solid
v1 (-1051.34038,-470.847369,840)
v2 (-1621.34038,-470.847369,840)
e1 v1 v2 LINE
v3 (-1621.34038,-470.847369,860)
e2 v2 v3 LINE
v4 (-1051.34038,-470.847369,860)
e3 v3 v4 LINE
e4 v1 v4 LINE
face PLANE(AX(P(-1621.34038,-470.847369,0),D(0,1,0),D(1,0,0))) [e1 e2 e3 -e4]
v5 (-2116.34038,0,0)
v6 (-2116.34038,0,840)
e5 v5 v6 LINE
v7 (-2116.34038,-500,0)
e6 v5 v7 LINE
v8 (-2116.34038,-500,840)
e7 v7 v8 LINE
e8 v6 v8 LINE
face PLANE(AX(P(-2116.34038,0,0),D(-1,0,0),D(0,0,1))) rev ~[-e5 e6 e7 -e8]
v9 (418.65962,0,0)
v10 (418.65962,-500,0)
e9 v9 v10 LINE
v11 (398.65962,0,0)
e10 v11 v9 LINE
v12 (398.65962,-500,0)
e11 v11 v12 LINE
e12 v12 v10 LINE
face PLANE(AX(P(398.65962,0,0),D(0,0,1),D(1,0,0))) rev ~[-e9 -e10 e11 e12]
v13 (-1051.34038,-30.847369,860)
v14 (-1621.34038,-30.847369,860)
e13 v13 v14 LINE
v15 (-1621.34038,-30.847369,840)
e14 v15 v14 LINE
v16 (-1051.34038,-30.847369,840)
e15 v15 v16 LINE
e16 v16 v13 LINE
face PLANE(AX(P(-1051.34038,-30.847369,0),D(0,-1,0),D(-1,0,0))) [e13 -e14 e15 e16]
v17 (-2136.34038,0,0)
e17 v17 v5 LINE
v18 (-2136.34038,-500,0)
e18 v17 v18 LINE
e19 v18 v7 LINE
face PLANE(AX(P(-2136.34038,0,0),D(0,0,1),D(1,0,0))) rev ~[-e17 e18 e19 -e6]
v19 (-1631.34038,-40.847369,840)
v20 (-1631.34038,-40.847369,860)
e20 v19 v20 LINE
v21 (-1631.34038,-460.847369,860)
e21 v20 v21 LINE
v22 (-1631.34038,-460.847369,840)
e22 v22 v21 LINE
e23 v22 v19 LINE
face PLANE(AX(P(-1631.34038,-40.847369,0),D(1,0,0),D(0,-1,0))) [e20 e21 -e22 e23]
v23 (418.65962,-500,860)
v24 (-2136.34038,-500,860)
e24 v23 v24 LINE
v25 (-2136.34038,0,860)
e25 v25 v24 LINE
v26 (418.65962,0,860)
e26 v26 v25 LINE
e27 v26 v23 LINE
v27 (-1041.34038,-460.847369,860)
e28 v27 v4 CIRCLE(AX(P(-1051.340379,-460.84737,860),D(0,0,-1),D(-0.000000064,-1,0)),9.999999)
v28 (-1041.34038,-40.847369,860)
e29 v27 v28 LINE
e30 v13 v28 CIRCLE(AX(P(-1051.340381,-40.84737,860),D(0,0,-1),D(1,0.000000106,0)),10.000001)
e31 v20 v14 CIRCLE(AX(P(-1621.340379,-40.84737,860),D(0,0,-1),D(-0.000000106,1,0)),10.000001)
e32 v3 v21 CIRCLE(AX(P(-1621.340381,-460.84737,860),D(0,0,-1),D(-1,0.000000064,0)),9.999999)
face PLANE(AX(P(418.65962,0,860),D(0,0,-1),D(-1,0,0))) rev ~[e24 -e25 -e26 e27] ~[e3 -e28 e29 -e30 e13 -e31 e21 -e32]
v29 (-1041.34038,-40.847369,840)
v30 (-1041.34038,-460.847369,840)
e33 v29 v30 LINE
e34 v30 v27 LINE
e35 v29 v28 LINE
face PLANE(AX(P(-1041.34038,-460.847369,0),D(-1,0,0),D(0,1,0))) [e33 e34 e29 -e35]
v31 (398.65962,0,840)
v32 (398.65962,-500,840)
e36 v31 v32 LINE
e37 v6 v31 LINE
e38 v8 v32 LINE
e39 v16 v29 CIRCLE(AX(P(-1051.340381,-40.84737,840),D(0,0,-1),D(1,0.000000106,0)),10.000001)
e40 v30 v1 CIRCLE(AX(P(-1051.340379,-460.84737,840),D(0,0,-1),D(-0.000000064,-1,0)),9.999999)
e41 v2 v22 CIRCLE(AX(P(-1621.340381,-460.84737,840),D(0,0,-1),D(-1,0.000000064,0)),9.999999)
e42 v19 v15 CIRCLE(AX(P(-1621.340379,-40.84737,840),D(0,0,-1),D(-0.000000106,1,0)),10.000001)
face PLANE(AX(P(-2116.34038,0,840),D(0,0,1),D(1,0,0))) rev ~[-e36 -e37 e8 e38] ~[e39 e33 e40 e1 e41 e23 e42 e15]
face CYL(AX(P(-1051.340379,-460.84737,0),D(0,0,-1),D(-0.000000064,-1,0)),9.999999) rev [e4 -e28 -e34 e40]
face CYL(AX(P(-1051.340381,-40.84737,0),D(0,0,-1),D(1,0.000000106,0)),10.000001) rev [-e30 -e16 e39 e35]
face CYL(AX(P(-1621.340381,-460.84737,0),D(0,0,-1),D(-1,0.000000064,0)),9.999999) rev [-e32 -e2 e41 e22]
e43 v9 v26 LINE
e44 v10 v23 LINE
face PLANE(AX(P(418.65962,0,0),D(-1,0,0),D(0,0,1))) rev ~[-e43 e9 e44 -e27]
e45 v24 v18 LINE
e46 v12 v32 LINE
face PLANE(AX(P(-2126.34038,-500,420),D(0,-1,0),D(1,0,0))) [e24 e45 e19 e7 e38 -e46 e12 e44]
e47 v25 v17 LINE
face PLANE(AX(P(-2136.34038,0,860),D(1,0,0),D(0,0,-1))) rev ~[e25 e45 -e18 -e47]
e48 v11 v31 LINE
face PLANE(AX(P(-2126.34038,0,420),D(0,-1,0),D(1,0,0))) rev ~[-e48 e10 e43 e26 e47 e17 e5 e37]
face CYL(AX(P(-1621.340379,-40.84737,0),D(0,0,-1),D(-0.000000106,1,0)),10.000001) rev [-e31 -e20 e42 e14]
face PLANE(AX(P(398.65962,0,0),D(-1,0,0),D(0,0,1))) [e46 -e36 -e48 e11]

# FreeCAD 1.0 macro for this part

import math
import FreeCAD as App
import Part
import Sketcher

V = App.Vector


def add_polygon(sketch, points):
    """Adds a closed chain of lines whose ends are joined by coincident constraints."""
    first, n = sketch.GeometryCount, len(points)
    for a, b in zip(points, points[1:] + points[:1]):
        sketch.addGeometry(Part.LineSegment(App.Vector(*a, 0), App.Vector(*b, 0)), False)
    for i in range(n):
        sketch.addConstraint(Sketcher.Constraint("Coincident", first + i, 2, first + (i + 1) % n, 1))

doc = App.newDocument("Part")
params = doc.addObject("Spreadsheet::Sheet", "Params")
for row, (alias, value) in enumerate([
    ("sketch1_width", "20 mm"),
    ("sketch1_width2", "2515 mm"),
    ("sketch1_height", "840 mm"),
    ("sketch1_height2", "860 mm"),
    ("pad1_length", "500 mm"),
    ("sketch2_radius", "9.999999 mm"),
    ("sketch2_width", "570 mm"),
    ("sketch2_height", "420 mm"),
    ("pocket1_length", "1397 mm"),
], start=1):
    params.set(f"A{row}", alias)
    params.set(f"B{row}", "=" + value)
    params.setAlias(f"B{row}", alias)

body = doc.addObject("PartDesign::Body", "Body")

sketch1 = body.newObject("Sketcher::SketchObject", "Sketch")
sketch1.AttachmentSupport = (doc.getObject("XZ_Plane"), [""])
sketch1.MapMode = "FlatFace"
add_polygon(sketch1, [(-2136.34038, 0), (-2116.34038, 0), (-2116.34038, 840), (398.65962, 840), (398.65962, 0), (418.65962, 0), (418.65962, 860), (-2136.34038, 860)])
sketch1.addConstraint([
    Sketcher.Constraint("Horizontal", 0),
    Sketcher.Constraint("Vertical", 1),
    Sketcher.Constraint("Horizontal", 2),
    Sketcher.Constraint("Vertical", 3),
    Sketcher.Constraint("Horizontal", 4),
    Sketcher.Constraint("Vertical", 5),
    Sketcher.Constraint("Horizontal", 6),
    Sketcher.Constraint("Vertical", 7),
    Sketcher.Constraint("PointOnObject", 0, 2, -1),
    Sketcher.Constraint("PointOnObject", 3, 2, -1),
    Sketcher.Constraint("Equal", 0, 4),
    Sketcher.Constraint("DistanceX", 0, 1, 0, 2, 20.0),
    Sketcher.Constraint("DistanceX", 2, 1, 2, 2, 2515.0),
    Sketcher.Constraint("DistanceY", 1, 1, 1, 2, 840.0),
    Sketcher.Constraint("DistanceY", 5, 1, 5, 2, 860.0),
    Sketcher.Constraint("DistanceX", 0, 2, -1, 1, 2116.34038),
])
sketch1.setExpression("Constraints[19]", "Params.sketch1_width")
sketch1.setExpression("Constraints[20]", "Params.sketch1_width2")
sketch1.setExpression("Constraints[21]", "Params.sketch1_height")
sketch1.setExpression("Constraints[22]", "Params.sketch1_height2")
pad1 = body.newObject("PartDesign::Pad", "Pad")
pad1.Profile = sketch1
pad1.setExpression("Length", "Params.pad1_length")

sketch2 = body.newObject("Sketcher::SketchObject", "Sketch001")
sketch2.AttachmentSupport = (doc.getObject("XY_Plane"), [""])
sketch2.MapMode = "FlatFace"
sketch2.addGeometry([
    Part.LineSegment(V(-1621.34038, -470.847369, 0), V(-1051.34038, -470.847369, 0)),
    Part.ArcOfCircle(Part.Circle(V(-1051.340379, -460.84737, 0), V(0, 0, 1), 9.999999), math.radians(-90.000004), math.radians(0.000004)),
    Part.LineSegment(V(-1041.34038, -460.847369, 0), V(-1041.34038, -40.847369, 0)),
    Part.ArcOfCircle(Part.Circle(V(-1051.340381, -40.84737, 0), V(0, 0, 1), 10.000001), math.radians(0.000006), math.radians(89.999994)),
    Part.LineSegment(V(-1051.34038, -30.847369, 0), V(-1621.34038, -30.847369, 0)),
    Part.ArcOfCircle(Part.Circle(V(-1621.340379, -40.84737, 0), V(0, 0, 1), 10.000001), math.radians(90.000006), math.radians(179.999994)),
    Part.LineSegment(V(-1631.34038, -40.847369, 0), V(-1631.34038, -460.847369, 0)),
    Part.ArcOfCircle(Part.Circle(V(-1621.340381, -460.84737, 0), V(0, 0, 1), 9.999999), math.radians(179.999996), math.radians(270.000004)),
], False)
sketch2.addConstraint([
    Sketcher.Constraint("Tangent", 0, 2, 1, 1),
    Sketcher.Constraint("Tangent", 1, 2, 2, 1),
    Sketcher.Constraint("Tangent", 2, 2, 3, 1),
    Sketcher.Constraint("Tangent", 3, 2, 4, 1),
    Sketcher.Constraint("Tangent", 4, 2, 5, 1),
    Sketcher.Constraint("Tangent", 5, 2, 6, 1),
    Sketcher.Constraint("Tangent", 6, 2, 7, 1),
    Sketcher.Constraint("Tangent", 7, 2, 0, 1),
    Sketcher.Constraint("Horizontal", 0),
    Sketcher.Constraint("Vertical", 2),
    Sketcher.Constraint("Horizontal", 4),
    Sketcher.Constraint("Vertical", 6),
    Sketcher.Constraint("Equal", 1, 3),
    Sketcher.Constraint("Equal", 3, 5),
    Sketcher.Constraint("Equal", 5, 7),
    Sketcher.Constraint("Radius", 1, 9.999999),
    Sketcher.Constraint("DistanceX", 0, 1, 0, 2, 570.0),
    Sketcher.Constraint("DistanceY", 2, 1, 2, 2, 420.0),
    Sketcher.Constraint("DistanceX", 1, 3, -1, 1, 1051.340379),
    Sketcher.Constraint("DistanceY", 1, 3, -1, 1, 460.84737),
])
sketch2.setExpression("Constraints[15]", "Params.sketch2_radius")
sketch2.setExpression("Constraints[16]", "Params.sketch2_width")
sketch2.setExpression("Constraints[17]", "Params.sketch2_height")
pocket1 = body.newObject("PartDesign::Pocket", "Pocket")
pocket1.Profile = sketch2
pocket1.setExpression("Length", "Params.pocket1_length")
pocket1.Reversed = True

doc.recompute()
